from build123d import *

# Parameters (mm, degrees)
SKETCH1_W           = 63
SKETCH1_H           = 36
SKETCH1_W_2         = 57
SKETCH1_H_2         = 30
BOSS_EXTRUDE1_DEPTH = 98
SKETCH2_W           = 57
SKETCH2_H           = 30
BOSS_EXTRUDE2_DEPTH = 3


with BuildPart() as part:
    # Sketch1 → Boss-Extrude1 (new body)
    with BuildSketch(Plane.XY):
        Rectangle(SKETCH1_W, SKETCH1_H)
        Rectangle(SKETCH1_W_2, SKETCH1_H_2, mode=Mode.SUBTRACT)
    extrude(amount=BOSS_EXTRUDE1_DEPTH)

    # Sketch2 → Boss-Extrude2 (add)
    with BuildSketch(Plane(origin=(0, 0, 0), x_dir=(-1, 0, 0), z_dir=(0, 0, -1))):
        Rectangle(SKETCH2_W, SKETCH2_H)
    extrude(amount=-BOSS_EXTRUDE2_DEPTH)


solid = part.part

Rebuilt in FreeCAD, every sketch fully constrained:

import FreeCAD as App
import Part
import Sketcher


def add_polygon(sketch, points):
    """Adds a closed chain of lines whose ends are joined by coincident constraints."""
    first, n = sketch.GeometryCount, len(points)
    for a, b in zip(points, points[1:] + points[:1]):
        sketch.addGeometry(Part.LineSegment(App.Vector(*a, 0), App.Vector(*b, 0)), False)
    for i in range(n):
        sketch.addConstraint(Sketcher.Constraint("Coincident", first + i, 2, first + (i + 1) % n, 1))

doc = App.newDocument("Part")
body = doc.addObject("PartDesign::Body", "Body")

sketch1 = body.newObject("Sketcher::SketchObject", "Sketch")
sketch1.AttachmentSupport = (doc.getObject("XY_Plane"), [""])
sketch1.MapMode = "FlatFace"
add_polygon(sketch1, [(-32, 18), (-32, -18), (32, -18), (32, 18)])
add_polygon(sketch1, [(28, -15), (-28, -15), (-28, 15), (28, 15)])
sketch1.addConstraint([
    Sketcher.Constraint("Vertical", 0),
    Sketcher.Constraint("Horizontal", 1),
    Sketcher.Constraint("Vertical", 2),
    Sketcher.Constraint("Horizontal", 3),
    Sketcher.Constraint("Horizontal", 4),
    Sketcher.Constraint("Vertical", 5),
    Sketcher.Constraint("Horizontal", 6),
    Sketcher.Constraint("Vertical", 7),
    Sketcher.Constraint("Symmetric", 0, 2, 2, 2, -1, 1),
    Sketcher.Constraint("Symmetric", 4, 2, 6, 2, -1, 1),
    Sketcher.Constraint("DistanceX", 1, 1, 1, 2, 63.0),
    Sketcher.Constraint("DistanceX", 4, 2, 4, 1, 57.0),
    Sketcher.Constraint("DistanceY", 0, 2, 0, 1, 36.0),
    Sketcher.Constraint("DistanceY", 5, 1, 5, 2, 30.0),
])
pad1 = body.newObject("PartDesign::Pad", "Pad")
pad1.Profile = sketch1
pad1.Length = 98

sketch2 = body.newObject("Sketcher::SketchObject", "Sketch001")
sketch2.AttachmentSupport = (doc.getObject("XY_Plane"), [""])
sketch2.MapMode = "FlatFace"
add_polygon(sketch2, [(28, 15), (28, -15), (-28, -15), (-28, 15)])
sketch2.addConstraint([
    Sketcher.Constraint("Vertical", 0),
    Sketcher.Constraint("Horizontal", 1),
    Sketcher.Constraint("Vertical", 2),
    Sketcher.Constraint("Horizontal", 3),
    Sketcher.Constraint("Symmetric", 0, 2, 2, 2, -1, 1),
    Sketcher.Constraint("DistanceX", 1, 2, 1, 1, 57.0),
    Sketcher.Constraint("DistanceY", 0, 2, 0, 1, 30.0),
])
pad2 = body.newObject("PartDesign::Pad", "Pad001")
pad2.Profile = sketch2
pad2.Length = 3

doc.recompute()
